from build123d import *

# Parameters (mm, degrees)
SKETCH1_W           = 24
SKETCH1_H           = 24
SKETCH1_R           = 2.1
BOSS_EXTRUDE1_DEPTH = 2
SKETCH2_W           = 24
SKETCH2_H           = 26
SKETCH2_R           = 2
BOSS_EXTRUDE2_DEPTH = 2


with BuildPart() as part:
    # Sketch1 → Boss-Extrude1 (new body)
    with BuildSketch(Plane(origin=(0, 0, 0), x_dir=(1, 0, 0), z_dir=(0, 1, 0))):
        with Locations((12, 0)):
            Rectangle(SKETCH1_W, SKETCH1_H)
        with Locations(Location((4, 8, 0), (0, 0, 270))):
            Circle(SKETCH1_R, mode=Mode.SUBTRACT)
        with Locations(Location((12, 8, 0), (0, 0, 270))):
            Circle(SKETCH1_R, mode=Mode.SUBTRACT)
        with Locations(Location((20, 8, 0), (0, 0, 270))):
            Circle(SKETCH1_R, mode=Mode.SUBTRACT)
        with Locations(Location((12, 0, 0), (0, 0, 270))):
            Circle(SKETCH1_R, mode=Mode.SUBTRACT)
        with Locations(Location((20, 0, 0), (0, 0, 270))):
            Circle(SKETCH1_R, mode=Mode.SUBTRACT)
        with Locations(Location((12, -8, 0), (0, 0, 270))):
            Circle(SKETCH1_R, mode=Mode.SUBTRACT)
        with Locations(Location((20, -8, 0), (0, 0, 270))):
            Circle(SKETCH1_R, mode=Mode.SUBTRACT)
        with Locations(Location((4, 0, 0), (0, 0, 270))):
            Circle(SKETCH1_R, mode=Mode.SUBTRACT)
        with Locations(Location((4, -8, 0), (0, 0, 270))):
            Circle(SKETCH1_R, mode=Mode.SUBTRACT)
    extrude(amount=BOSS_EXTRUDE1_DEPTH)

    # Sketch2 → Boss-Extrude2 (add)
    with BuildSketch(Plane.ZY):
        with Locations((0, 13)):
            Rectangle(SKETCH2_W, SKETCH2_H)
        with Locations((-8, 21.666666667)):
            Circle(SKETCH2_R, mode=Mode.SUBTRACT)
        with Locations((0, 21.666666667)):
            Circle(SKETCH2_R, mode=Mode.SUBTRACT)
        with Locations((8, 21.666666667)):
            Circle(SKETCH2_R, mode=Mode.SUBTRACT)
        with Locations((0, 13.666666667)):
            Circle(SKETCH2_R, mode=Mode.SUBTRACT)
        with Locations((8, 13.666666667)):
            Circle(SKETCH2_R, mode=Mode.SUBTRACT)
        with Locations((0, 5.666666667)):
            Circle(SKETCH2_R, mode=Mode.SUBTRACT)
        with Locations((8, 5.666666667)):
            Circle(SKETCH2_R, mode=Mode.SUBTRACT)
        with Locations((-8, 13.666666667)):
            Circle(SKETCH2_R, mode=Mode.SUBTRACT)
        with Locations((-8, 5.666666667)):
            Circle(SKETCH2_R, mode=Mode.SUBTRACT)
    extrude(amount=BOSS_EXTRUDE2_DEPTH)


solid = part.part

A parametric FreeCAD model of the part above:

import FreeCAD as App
import Part
import Sketcher
from FreeCAD import Vector
Q = App.Units.Quantity


def add_polygon(sketch, points):
    """Adds a closed chain of lines whose ends are joined by coincident constraints."""
    first, n = sketch.GeometryCount, len(points)
    for a, b in zip(points, points[1:] + points[:1]):
        sketch.addGeometry(Part.LineSegment(App.Vector(*a, 0), App.Vector(*b, 0)), False)
    for i in range(n):
        sketch.addConstraint(Sketcher.Constraint("Coincident", first + i, 2, first + (i + 1) % n, 1))

doc = App.newDocument("Part")
body = doc.addObject("PartDesign::Body", "Body")

# Sketch on XZ plane
sketch1 = doc.addObject("Sketcher::SketchObject", "Sketch")
body.addObject(sketch1)
sketch1.AttachmentSupport = (doc.XZ_Plane, [""])
sketch1.MapMode = "FlatFace"
add_polygon(sketch1, [(0, -12), (0, 12), (24, 12), (24, -12)])  # lines 0-3
sketch1.addGeometry(Part.Circle(Vector(4, 8, 0), Vector(0, 0, 1), 2.1), False)  # 4
sketch1.addGeometry(Part.Circle(Vector(12, 8, 0), Vector(0, 0, 1), 2.1), False)  # 5
sketch1.addGeometry(Part.Circle(Vector(20, 8, 0), Vector(0, 0, 1), 2.1), False)  # 6
sketch1.addGeometry(Part.Circle(Vector(4, 0, 0), Vector(0, 0, 1), 2.1), False)  # 7
sketch1.addGeometry(Part.Circle(Vector(4, -8, 0), Vector(0, 0, 1), 2.1), False)  # 8
sketch1.addGeometry(Part.Circle(Vector(12, 0, 0), Vector(0, 0, 1), 2.1), False)  # 9
sketch1.addGeometry(Part.Circle(Vector(20, 0, 0), Vector(0, 0, 1), 2.1), False)  # 10
sketch1.addGeometry(Part.Circle(Vector(12, -8, 0), Vector(0, 0, 1), 2.1), False)  # 11
sketch1.addGeometry(Part.Circle(Vector(20, -8, 0), Vector(0, 0, 1), 2.1), False)  # 12
sketch1.addConstraint([
    Sketcher.Constraint("Vertical", 0),
    Sketcher.Constraint("Horizontal", 1),
    Sketcher.Constraint("Vertical", 2),
    Sketcher.Constraint("Horizontal", 3),
    Sketcher.Constraint("Equal", 4, 5),
    Sketcher.Constraint("Equal", 5, 6),
    Sketcher.Constraint("Equal", 6, 7),
    Sketcher.Constraint("Equal", 7, 8),
    Sketcher.Constraint("Equal", 8, 9),
    Sketcher.Constraint("Equal", 9, 10),
    Sketcher.Constraint("Equal", 10, 11),
    Sketcher.Constraint("Equal", 11, 12),
    Sketcher.Constraint("Symmetric", 0, 2, 3, 2, -1, 1),
    Sketcher.Constraint("Symmetric", 4, 3, 8, 3, -1),
    Sketcher.Constraint("Symmetric", 5, 3, 11, 3, -1),
    Sketcher.Constraint("Symmetric", 6, 3, 12, 3, -1),
    Sketcher.Constraint("PointOnObject", 7, 3, -1),
    Sketcher.Constraint("PointOnObject", 9, 3, -1),
    Sketcher.Constraint("PointOnObject", 10, 3, -1),
    Sketcher.Constraint("Horizontal", 4, 3, 5, 3),
    Sketcher.Constraint("Horizontal", 5, 3, 6, 3),
    Sketcher.Constraint("Vertical", 4, 3, 7, 3),
    Sketcher.Constraint("Vertical", 5, 3, 9, 3),
    Sketcher.Constraint("Vertical", 6, 3, 10, 3),
    Sketcher.Constraint("Equal", 3, 0),
    Sketcher.Constraint("Diameter", 4, Q("4.2 mm")),
    Sketcher.Constraint("DistanceX", 1, 1, 1, 2, Q("24 mm")),
    Sketcher.Constraint("DistanceX", -1, 1, 4, 3, Q("4 mm")),
    Sketcher.Constraint("DistanceY", -1, 1, 4, 3, Q("8 mm")),
    Sketcher.Constraint("DistanceX", -1, 1, 5, 3, Q("12 mm")),
    Sketcher.Constraint("DistanceX", -1, 1, 6, 3, Q("20 mm")),
])
pad1 = doc.addObject("PartDesign::Pad", "Pad")
body.addObject(pad1)
pad1.Profile = sketch1
pad1.Length = 2
pad1.Reversed = True

# Sketch on YZ plane
sketch2 = doc.addObject("Sketcher::SketchObject", "Sketch001")
body.addObject(sketch2)
sketch2.AttachmentSupport = (doc.YZ_Plane, [""])
sketch2.MapMode = "FlatFace"
add_polygon(sketch2, [(26, -12), (0, -12), (0, 12), (26, 12)])  # lines 0-3
sketch2.addGeometry(Part.Circle(Vector(5.7, -8, 0), Vector(0, 0, 1), 2), False)  # 4
sketch2.addGeometry(Part.Circle(Vector(13.7, -8, 0), Vector(0, 0, 1), 2), False)  # 5
sketch2.addGeometry(Part.Circle(Vector(5.7, 0, 0), Vector(0, 0, 1), 2), False)  # 6
sketch2.addGeometry(Part.Circle(Vector(5.7, 8, 0), Vector(0, 0, 1), 2), False)  # 7
sketch2.addGeometry(Part.Circle(Vector(13.7, 0, 0), Vector(0, 0, 1), 2), False)  # 8
sketch2.addGeometry(Part.Circle(Vector(13.7, 8, 0), Vector(0, 0, 1), 2), False)  # 9
sketch2.addGeometry(Part.Circle(Vector(21.7, -8, 0), Vector(0, 0, 1), 2), False)  # 10
sketch2.addGeometry(Part.Circle(Vector(21.7, 0, 0), Vector(0, 0, 1), 2), False)  # 11
sketch2.addGeometry(Part.Circle(Vector(21.7, 8, 0), Vector(0, 0, 1), 2), False)  # 12
sketch2.addConstraint([
    Sketcher.Constraint("Horizontal", 0),
    Sketcher.Constraint("Vertical", 1),
    Sketcher.Constraint("Horizontal", 2),
    Sketcher.Constraint("Vertical", 3),
    Sketcher.Constraint("Equal", 4, 5),
    Sketcher.Constraint("Equal", 5, 6),
    Sketcher.Constraint("Equal", 6, 7),
    Sketcher.Constraint("Equal", 7, 8),
    Sketcher.Constraint("Equal", 8, 9),
    Sketcher.Constraint("Equal", 9, 10),
    Sketcher.Constraint("Equal", 10, 11),
    Sketcher.Constraint("Equal", 11, 12),
    Sketcher.Constraint("Symmetric", 0, 2, 1, 2, -1, 1),
    Sketcher.Constraint("Symmetric", 4, 3, 7, 3, -1),
    Sketcher.Constraint("Symmetric", 5, 3, 9, 3, -1),
    Sketcher.Constraint("Symmetric", 10, 3, 12, 3, -1),
    Sketcher.Constraint("PointOnObject", 6, 3, -1),
    Sketcher.Constraint("PointOnObject", 8, 3, -1),
    Sketcher.Constraint("PointOnObject", 11, 3, -1),
    Sketcher.Constraint("Horizontal", 4, 3, 5, 3),
    Sketcher.Constraint("Horizontal", 5, 3, 10, 3),
    Sketcher.Constraint("Vertical", 4, 3, 6, 3),
    Sketcher.Constraint("Vertical", 5, 3, 8, 3),
    Sketcher.Constraint("Vertical", 10, 3, 11, 3),
    Sketcher.Constraint("Diameter", 4, Q("4 mm")),
    Sketcher.Constraint("DistanceX", 0, 2, 0, 1, Q("26 mm")),
    Sketcher.Constraint("DistanceY", 1, 1, 1, 2, Q("24 mm")),
    Sketcher.Constraint("DistanceY", 4, 3, -1, 1, Q("8 mm")),
    Sketcher.Constraint("DistanceX", 4, 3, 5, 3, Q("8 mm")),
    Sketcher.Constraint("DistanceX", 5, 3, 10, 3, Q("8 mm")),
    Sketcher.Constraint("DistanceX", -1, 1, 4, 3, Q("5.666667 mm")),
])
pad2 = doc.addObject("PartDesign::Pad", "Pad001")
body.addObject(pad2)
pad2.Profile = sketch2
pad2.Length = 2
pad2.Reversed = True

doc.recompute()
